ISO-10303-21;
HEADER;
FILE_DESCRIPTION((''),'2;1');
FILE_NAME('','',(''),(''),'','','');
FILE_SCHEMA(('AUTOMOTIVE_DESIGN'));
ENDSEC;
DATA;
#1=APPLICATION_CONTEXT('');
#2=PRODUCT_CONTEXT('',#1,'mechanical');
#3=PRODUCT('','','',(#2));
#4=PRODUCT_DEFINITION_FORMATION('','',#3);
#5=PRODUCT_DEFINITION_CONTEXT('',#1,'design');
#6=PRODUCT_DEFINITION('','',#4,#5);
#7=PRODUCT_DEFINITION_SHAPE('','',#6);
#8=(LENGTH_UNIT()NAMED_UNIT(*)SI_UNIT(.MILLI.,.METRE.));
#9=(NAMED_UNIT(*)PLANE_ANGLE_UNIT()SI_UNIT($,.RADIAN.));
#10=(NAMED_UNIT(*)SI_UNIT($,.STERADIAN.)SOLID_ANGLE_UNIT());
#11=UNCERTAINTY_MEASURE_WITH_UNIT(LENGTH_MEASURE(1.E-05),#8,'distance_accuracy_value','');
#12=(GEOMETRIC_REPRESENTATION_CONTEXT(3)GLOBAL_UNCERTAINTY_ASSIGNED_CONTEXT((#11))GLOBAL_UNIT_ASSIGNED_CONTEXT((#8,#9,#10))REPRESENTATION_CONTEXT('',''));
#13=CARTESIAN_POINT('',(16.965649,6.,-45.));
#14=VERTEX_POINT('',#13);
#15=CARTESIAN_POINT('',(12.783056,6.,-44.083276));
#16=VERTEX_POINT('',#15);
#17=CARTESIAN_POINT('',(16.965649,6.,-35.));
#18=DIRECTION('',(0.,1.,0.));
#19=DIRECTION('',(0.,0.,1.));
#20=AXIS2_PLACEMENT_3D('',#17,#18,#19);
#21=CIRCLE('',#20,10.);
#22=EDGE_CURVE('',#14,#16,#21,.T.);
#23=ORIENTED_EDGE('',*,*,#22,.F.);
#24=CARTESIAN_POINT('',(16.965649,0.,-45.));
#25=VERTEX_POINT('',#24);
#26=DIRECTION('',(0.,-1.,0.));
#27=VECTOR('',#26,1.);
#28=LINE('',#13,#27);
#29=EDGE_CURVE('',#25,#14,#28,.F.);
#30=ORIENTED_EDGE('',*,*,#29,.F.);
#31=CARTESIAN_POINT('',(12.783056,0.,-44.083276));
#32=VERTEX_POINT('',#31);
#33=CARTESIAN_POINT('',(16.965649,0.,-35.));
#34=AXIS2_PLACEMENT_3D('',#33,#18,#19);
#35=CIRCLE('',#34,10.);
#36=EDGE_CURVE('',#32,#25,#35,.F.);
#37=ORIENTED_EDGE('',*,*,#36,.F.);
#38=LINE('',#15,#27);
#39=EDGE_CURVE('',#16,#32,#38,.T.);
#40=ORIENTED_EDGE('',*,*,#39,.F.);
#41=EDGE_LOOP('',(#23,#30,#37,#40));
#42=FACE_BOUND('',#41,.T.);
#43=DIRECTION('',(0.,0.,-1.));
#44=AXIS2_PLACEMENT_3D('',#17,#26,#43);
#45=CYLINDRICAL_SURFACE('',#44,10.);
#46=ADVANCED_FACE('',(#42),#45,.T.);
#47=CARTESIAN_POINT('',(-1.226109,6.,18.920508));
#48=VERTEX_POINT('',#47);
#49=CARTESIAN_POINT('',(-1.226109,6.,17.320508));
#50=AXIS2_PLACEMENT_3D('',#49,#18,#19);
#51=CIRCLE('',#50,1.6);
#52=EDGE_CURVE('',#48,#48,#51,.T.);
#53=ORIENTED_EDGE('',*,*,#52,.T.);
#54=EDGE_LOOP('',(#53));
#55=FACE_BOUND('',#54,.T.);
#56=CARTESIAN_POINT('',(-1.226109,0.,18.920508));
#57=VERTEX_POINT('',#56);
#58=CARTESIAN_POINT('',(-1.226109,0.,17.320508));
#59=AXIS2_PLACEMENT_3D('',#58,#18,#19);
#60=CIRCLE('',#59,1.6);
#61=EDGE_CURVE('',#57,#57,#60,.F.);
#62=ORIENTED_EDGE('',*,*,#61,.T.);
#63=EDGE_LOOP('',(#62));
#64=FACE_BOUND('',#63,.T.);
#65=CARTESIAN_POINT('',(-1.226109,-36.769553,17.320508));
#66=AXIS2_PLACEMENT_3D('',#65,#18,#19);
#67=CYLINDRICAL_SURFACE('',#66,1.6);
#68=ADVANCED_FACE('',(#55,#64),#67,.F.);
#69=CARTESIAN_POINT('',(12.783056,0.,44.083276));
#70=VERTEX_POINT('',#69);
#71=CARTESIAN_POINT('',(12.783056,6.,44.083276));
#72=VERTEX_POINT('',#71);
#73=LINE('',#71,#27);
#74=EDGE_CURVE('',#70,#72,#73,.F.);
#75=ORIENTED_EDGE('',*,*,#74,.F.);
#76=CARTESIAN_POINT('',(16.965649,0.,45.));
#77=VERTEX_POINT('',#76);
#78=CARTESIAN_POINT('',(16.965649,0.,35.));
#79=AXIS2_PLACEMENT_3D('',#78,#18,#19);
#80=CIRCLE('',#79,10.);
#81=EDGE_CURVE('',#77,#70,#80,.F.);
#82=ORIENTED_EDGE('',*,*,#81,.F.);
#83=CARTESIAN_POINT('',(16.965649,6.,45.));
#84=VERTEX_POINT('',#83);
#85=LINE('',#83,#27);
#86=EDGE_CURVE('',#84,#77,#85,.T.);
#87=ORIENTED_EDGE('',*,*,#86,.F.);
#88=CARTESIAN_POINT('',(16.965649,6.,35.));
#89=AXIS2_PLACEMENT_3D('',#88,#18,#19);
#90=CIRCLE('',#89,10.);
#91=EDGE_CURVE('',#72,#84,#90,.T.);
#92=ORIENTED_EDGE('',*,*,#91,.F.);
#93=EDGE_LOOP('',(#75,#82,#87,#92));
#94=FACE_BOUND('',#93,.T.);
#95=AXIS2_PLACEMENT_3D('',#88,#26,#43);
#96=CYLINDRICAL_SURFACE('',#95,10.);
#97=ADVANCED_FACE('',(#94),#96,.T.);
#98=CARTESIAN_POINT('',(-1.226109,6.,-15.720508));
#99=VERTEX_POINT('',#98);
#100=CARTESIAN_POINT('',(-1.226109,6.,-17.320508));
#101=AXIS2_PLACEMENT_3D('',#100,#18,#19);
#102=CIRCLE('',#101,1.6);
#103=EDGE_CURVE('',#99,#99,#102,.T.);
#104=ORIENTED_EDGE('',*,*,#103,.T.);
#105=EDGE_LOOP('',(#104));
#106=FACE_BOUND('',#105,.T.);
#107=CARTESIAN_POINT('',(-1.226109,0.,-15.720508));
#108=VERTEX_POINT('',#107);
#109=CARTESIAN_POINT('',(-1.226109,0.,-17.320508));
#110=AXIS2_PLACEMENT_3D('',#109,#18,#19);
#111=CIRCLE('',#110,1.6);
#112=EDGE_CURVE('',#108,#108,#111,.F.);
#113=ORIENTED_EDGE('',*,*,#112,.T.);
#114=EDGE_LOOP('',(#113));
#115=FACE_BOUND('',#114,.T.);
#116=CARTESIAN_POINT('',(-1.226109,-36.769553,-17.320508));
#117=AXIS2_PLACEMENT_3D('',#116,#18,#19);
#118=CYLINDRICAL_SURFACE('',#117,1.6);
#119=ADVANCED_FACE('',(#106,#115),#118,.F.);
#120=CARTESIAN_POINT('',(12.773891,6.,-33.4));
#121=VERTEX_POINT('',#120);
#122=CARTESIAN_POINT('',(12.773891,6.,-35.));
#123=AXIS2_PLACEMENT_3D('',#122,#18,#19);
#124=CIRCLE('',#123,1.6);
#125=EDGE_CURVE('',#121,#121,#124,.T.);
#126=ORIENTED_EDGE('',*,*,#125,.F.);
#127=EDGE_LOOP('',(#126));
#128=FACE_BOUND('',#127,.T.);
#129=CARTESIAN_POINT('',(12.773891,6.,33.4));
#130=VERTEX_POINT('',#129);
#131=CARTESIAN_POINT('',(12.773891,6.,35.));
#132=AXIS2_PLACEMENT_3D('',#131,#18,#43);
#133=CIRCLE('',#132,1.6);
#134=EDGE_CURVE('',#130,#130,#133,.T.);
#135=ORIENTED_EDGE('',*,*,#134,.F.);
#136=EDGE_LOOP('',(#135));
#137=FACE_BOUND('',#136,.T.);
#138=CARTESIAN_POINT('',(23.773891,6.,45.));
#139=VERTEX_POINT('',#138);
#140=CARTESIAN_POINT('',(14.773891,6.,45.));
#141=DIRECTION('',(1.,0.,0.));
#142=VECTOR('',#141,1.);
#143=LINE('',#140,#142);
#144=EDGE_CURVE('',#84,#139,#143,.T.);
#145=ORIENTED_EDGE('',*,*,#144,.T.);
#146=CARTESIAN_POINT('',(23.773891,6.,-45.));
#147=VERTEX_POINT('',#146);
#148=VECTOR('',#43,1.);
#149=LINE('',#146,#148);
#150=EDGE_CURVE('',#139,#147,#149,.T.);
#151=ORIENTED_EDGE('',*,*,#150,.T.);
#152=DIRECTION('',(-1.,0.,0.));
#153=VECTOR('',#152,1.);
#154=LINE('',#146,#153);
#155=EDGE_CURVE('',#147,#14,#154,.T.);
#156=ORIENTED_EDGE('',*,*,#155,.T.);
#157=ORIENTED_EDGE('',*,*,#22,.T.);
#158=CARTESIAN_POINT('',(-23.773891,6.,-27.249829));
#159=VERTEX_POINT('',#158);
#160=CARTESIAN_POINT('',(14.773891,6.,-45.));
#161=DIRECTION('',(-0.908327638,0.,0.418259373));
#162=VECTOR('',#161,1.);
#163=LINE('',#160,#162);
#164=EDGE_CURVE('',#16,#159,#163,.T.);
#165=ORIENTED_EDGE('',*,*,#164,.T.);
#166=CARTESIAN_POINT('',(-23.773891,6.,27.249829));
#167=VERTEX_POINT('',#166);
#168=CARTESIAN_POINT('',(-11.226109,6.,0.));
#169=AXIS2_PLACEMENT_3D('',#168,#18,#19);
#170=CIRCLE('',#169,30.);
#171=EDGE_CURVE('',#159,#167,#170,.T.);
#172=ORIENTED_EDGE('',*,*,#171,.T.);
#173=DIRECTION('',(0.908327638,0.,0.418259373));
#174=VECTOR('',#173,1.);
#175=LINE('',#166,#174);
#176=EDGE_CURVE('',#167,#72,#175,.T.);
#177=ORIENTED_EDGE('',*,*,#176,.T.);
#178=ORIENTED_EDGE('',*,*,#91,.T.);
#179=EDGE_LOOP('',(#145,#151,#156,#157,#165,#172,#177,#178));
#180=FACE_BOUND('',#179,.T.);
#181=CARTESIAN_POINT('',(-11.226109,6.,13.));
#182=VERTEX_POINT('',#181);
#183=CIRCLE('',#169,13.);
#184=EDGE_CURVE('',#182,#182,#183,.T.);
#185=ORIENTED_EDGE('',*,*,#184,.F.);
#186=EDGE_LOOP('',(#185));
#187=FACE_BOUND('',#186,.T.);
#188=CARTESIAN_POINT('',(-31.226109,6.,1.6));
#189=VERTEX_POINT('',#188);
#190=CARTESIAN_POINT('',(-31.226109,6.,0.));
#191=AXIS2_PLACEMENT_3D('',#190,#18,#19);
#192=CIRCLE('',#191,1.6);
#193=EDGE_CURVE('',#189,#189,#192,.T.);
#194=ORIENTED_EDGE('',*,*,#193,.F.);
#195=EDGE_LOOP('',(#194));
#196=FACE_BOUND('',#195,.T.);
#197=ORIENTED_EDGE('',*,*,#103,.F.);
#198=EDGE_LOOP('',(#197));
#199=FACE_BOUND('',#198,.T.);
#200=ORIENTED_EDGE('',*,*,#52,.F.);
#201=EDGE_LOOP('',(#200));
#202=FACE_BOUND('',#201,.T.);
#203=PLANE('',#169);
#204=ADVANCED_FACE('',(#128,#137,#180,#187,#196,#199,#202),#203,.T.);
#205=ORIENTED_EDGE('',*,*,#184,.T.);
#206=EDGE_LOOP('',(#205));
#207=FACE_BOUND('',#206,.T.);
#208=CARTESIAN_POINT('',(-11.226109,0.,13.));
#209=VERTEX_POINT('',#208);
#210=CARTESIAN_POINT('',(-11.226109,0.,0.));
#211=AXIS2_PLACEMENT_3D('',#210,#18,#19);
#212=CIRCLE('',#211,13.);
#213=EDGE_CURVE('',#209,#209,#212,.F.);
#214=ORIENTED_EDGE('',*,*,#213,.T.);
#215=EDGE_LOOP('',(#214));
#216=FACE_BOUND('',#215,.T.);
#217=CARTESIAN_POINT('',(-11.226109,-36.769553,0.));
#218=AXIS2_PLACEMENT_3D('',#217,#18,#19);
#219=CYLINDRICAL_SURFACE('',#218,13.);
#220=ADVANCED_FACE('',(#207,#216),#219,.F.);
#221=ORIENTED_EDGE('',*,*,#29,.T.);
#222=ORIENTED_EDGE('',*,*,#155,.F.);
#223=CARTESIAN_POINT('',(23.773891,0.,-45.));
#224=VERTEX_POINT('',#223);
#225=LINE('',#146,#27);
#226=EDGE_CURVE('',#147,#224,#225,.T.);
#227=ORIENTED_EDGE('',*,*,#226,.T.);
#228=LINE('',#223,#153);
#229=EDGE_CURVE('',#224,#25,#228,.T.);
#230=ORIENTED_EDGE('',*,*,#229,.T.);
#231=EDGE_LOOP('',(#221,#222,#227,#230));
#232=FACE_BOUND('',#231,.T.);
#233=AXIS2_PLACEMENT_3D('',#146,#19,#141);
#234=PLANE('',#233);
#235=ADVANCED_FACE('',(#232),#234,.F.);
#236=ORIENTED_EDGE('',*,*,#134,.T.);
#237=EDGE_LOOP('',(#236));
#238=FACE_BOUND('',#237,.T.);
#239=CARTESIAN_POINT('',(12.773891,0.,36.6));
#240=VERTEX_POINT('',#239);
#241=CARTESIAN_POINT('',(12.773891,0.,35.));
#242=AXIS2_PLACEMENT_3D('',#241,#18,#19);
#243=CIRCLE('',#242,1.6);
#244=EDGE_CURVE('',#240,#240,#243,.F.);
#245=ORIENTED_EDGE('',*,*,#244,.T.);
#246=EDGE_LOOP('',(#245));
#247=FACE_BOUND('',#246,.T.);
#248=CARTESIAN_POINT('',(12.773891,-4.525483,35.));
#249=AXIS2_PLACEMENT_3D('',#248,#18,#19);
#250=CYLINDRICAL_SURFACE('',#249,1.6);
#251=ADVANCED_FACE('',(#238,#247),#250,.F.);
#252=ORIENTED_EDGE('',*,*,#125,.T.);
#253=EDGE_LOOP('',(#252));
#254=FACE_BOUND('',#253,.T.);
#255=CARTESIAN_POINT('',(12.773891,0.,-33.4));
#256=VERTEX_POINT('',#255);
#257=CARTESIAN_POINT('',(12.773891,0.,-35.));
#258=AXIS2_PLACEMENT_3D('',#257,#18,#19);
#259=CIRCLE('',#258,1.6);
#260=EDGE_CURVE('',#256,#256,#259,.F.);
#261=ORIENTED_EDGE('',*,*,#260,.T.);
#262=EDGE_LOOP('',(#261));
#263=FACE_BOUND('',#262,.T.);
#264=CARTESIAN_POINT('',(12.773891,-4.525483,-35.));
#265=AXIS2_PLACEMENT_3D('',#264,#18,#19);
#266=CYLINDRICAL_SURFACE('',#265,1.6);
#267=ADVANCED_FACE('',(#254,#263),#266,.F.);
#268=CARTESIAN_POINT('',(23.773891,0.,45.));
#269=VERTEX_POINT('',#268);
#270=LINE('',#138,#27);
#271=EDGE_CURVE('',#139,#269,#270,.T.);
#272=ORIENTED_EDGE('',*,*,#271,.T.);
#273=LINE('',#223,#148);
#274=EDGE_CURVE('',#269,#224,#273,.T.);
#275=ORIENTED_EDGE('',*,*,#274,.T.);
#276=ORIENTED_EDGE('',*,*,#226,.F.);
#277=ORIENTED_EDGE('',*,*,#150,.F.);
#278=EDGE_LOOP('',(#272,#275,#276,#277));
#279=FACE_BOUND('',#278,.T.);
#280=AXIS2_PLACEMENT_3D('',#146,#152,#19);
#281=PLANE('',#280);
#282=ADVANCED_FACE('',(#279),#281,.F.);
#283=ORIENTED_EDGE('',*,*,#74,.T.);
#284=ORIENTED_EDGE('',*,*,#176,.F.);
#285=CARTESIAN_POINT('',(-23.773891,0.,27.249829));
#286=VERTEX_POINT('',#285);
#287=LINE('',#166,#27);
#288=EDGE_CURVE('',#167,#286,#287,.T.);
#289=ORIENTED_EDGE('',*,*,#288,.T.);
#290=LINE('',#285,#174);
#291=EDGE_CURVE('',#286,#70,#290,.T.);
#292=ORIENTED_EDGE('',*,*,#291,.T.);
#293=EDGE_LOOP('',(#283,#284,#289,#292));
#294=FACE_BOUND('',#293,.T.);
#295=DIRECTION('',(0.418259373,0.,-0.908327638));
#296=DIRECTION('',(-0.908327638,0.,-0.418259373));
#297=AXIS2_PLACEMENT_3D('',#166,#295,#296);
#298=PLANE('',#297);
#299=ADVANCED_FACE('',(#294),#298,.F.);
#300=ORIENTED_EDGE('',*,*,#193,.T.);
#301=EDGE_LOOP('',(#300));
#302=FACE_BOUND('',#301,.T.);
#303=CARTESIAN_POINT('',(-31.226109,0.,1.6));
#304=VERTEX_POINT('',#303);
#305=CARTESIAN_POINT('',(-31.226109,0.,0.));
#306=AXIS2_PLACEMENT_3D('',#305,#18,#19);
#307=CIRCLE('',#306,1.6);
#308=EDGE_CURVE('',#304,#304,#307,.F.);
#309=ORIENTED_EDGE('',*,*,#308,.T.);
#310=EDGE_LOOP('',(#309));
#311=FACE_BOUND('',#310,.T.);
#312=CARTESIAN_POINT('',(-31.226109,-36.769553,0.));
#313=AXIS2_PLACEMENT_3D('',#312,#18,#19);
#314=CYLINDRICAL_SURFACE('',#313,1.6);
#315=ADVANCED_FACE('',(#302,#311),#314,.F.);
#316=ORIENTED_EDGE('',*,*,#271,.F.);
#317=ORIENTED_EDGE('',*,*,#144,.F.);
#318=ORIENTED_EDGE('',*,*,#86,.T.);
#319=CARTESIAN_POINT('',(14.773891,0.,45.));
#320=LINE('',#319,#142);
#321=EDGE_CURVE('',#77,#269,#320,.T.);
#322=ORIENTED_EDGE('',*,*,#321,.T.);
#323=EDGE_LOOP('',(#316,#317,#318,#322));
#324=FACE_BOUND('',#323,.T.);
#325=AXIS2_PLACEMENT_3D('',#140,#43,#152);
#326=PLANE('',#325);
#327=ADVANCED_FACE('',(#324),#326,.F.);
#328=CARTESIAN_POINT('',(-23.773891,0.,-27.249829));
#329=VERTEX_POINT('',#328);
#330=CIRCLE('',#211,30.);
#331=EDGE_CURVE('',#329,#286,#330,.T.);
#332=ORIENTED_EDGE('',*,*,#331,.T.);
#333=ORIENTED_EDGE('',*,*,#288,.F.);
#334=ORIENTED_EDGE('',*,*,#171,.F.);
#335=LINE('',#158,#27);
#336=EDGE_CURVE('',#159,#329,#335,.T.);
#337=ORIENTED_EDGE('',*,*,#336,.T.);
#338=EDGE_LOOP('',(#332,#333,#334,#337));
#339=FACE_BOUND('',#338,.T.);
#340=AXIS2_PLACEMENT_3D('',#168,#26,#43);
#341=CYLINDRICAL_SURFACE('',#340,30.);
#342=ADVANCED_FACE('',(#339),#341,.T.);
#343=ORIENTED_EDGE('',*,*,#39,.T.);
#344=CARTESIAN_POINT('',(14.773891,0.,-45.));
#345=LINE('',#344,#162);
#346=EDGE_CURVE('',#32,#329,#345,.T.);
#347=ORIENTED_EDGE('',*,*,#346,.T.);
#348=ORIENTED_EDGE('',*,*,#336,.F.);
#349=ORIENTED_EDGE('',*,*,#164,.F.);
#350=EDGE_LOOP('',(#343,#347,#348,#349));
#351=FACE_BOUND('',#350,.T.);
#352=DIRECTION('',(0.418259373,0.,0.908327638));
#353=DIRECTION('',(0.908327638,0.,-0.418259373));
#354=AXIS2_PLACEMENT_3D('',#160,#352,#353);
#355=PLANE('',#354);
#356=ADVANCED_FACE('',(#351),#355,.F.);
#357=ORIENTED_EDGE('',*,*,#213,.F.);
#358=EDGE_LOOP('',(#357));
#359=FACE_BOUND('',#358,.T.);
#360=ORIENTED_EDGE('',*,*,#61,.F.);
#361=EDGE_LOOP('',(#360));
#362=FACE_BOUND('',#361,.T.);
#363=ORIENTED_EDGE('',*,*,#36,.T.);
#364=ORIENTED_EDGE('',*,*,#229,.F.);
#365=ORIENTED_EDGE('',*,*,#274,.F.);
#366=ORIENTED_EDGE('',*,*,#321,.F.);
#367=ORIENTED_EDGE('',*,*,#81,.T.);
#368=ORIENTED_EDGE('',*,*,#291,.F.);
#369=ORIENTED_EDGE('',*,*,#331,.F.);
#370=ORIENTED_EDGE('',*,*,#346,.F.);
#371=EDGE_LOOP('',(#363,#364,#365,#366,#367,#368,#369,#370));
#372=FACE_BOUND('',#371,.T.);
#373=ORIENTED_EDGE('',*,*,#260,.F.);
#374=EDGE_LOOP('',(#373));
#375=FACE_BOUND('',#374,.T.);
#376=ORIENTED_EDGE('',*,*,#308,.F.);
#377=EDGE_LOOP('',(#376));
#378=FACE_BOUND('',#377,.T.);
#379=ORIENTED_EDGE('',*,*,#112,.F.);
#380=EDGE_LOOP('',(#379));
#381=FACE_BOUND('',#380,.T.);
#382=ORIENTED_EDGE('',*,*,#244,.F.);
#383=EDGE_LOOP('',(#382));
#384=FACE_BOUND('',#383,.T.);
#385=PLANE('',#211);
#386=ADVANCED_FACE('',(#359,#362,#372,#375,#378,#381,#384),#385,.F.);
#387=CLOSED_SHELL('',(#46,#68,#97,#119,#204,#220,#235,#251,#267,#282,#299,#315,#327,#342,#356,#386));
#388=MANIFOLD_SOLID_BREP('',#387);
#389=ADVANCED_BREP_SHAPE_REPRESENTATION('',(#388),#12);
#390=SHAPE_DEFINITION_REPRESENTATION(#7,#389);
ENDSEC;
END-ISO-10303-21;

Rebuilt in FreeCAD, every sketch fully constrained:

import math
import FreeCAD as App
import Part
import Sketcher

V = App.Vector
Q = App.Units.Quantity


def edges_at(feature, points):
    """Names of the edges that pass closest to the given points."""
    edges = feature.Shape.Edges
    near = lambda p: min(range(len(edges)), key=lambda i: edges[i].distToShape(Part.Vertex(*p))[0])
    return sorted({f"Edge{near(p) + 1}" for p in points})

doc = App.newDocument("Part")
params = doc.addObject("Spreadsheet::Sheet", "Params")
for row, (alias, value) in enumerate([
    ("sketch1_radius", "30 mm"),
    ("sketch1_width", "9 mm"),
    ("sketch1_height", "90 mm"),
    ("pad1_length", "6 mm"),
    ("sketch2_diameter", "26 mm"),
    ("sketch2_diameter2", "3.2 mm"),
    ("pocket1_length", "6 mm"),
    ("fillet_radius", "10 mm"),
    ("sketch3_diameter", "3.2 mm"),
    ("pocket2_length", "6 mm"),
], start=1):
    params.set(f"A{row}", alias)
    params.set(f"B{row}", "=" + value)
    params.setAlias(f"B{row}", alias)

body = doc.addObject("PartDesign::Body", "Body")

# Sketch on XZ plane
sketch1 = body.newObject("Sketcher::SketchObject", "Sketch")
sketch1.AttachmentSupport = (doc.getObject("XZ_Plane"), [""])
sketch1.MapMode = "FlatFace"
sketch1.addGeometry([
    Part.LineSegment(V(24, 45, 0), V(24, -45, 0)),  # 0
    Part.LineSegment(V(24, -45, 0), V(15, -45, 0)),  # 1
    Part.LineSegment(V(15, -45, 0), V(-24, -27, 0)),  # 2
    Part.ArcOfCircle(Part.Circle(V(-11, 0, 0), V(0, 0, 1), 30), math.radians(115), math.radians(245)),  # 3
    Part.LineSegment(V(-24, 27, 0), V(15, 45, 0)),  # 4
    Part.LineSegment(V(15, 45, 0), V(24, 45, 0)),  # 5
], False)
sketch1.addConstraint([
    Sketcher.Constraint("Coincident", 0, 2, 1, 1),
    Sketcher.Constraint("Coincident", 1, 2, 2, 1),
    Sketcher.Constraint("Tangent", 2, 2, 3, 2),
    Sketcher.Constraint("Tangent", 3, 1, 4, 1),
    Sketcher.Constraint("Coincident", 4, 2, 5, 1),
    Sketcher.Constraint("Coincident", 5, 2, 0, 1),
    Sketcher.Constraint("Vertical", 0),
    Sketcher.Constraint("Horizontal", 1),
    Sketcher.Constraint("Horizontal", 5),
    Sketcher.Constraint("Symmetric", 2, 2, 3, 1, -1),
    Sketcher.Constraint("Vertical", 1, 2, 4, 2),
    Sketcher.Constraint("Radius", 3, Q("30 mm")),
    Sketcher.Constraint("DistanceX", 1, 2, 1, 1, Q("9 mm")),
    Sketcher.Constraint("DistanceY", 0, 2, 0, 1, Q("90 mm")),
    Sketcher.Constraint("DistanceX", 3, 3, 0, 2, Q("35 mm")),
    Sketcher.Constraint("DistanceX", 3, 3, -1, 1, Q("11.226109 mm")),
])
sketch1.setExpression("Constraints[11]", "Params.sketch1_radius")
sketch1.setExpression("Constraints[12]", "Params.sketch1_width")
sketch1.setExpression("Constraints[13]", "Params.sketch1_height")
pad1 = body.newObject("PartDesign::Pad", "Pad")
pad1.Profile = sketch1
pad1.setExpression("Length", "Params.pad1_length")
pad1.Reversed = True

# Sketch on XZ plane
sketch2 = body.newObject("Sketcher::SketchObject", "Sketch001")
sketch2.AttachmentSupport = (doc.getObject("XZ_Plane"), [""])
sketch2.MapMode = "FlatFace"
sketch2.AttachmentOffset = App.Placement(V(0, 0, -6), App.Rotation())
sketch2.addGeometry([
    Part.Circle(V(-11.2, 0, 0), V(0, 0, 1), 13),
    Part.Circle(V(-31.2, 0, 0), V(0, 0, 1), 1.6),
    Part.Circle(V(-1.2, 17.3, 0), V(0, 0, 1), 1.6),
    Part.Circle(V(-1.2, -17.3, 0), V(0, 0, 1), 1.6),
], False)
sketch2.addConstraint([
    Sketcher.Constraint("Equal", 1, 2),
    Sketcher.Constraint("Equal", 2, 3),
    Sketcher.Constraint("Symmetric", 2, 3, 3, 3, -1),
    Sketcher.Constraint("PointOnObject", 0, 3, -1),
    Sketcher.Constraint("PointOnObject", 1, 3, -1),
    Sketcher.Constraint("Diameter", 0, Q("26 mm")),
    Sketcher.Constraint("Diameter", 1, Q("3.2 mm")),
    Sketcher.Constraint("DistanceX", 1, 3, 0, 3, Q("20 mm")),
    Sketcher.Constraint("DistanceX", 0, 3, 2, 3, Q("10 mm")),
    Sketcher.Constraint("DistanceX", 0, 3, -1, 1, Q("11.226109 mm")),
    Sketcher.Constraint("DistanceY", -1, 1, 2, 3, Q("17.320508 mm")),
])
sketch2.setExpression("Constraints[5]", "Params.sketch2_diameter")
sketch2.setExpression("Constraints[6]", "Params.sketch2_diameter2")
pocket1 = body.newObject("PartDesign::Pocket", "Pocket")
pocket1.Profile = sketch2
pocket1.setExpression("Length", "Params.pocket1_length")
pocket1.Reversed = True
doc.recompute()

fillet = body.newObject("PartDesign::Fillet", "Fillet")
fillet.Base = (pocket1, edges_at(pocket1, [(14.774, 3, -45), (14.774, 3, 45)]))
fillet.setExpression("Radius", "Params.fillet_radius")

# Sketch on XZ plane
sketch3 = body.newObject("Sketcher::SketchObject", "Sketch002")
sketch3.AttachmentSupport = (doc.getObject("XZ_Plane"), [""])
sketch3.MapMode = "FlatFace"
sketch3.AttachmentOffset = App.Placement(V(0, 0, -6), App.Rotation())
sketch3.addGeometry([
    Part.Circle(V(12.8, -35, 0), V(0, 0, 1), 1.6),
    Part.Circle(V(12.8, 35, 0), V(0, 0, 1), 1.6),
], False)
sketch3.addConstraint([
    Sketcher.Constraint("Equal", 0, 1),
    Sketcher.Constraint("Symmetric", 0, 3, 1, 3, -1),
    Sketcher.Constraint("Diameter", 0, Q("3.2 mm")),
    Sketcher.Constraint("DistanceY", 0, 3, -1, 1, Q("35 mm")),
    Sketcher.Constraint("DistanceX", -1, 1, 0, 3, Q("12.773891 mm")),
])
sketch3.setExpression("Constraints[2]", "Params.sketch3_diameter")
pocket2 = body.newObject("PartDesign::Pocket", "Pocket001")
pocket2.Profile = sketch3
pocket2.setExpression("Length", "Params.pocket2_length")
pocket2.Reversed = True

doc.recompute()
